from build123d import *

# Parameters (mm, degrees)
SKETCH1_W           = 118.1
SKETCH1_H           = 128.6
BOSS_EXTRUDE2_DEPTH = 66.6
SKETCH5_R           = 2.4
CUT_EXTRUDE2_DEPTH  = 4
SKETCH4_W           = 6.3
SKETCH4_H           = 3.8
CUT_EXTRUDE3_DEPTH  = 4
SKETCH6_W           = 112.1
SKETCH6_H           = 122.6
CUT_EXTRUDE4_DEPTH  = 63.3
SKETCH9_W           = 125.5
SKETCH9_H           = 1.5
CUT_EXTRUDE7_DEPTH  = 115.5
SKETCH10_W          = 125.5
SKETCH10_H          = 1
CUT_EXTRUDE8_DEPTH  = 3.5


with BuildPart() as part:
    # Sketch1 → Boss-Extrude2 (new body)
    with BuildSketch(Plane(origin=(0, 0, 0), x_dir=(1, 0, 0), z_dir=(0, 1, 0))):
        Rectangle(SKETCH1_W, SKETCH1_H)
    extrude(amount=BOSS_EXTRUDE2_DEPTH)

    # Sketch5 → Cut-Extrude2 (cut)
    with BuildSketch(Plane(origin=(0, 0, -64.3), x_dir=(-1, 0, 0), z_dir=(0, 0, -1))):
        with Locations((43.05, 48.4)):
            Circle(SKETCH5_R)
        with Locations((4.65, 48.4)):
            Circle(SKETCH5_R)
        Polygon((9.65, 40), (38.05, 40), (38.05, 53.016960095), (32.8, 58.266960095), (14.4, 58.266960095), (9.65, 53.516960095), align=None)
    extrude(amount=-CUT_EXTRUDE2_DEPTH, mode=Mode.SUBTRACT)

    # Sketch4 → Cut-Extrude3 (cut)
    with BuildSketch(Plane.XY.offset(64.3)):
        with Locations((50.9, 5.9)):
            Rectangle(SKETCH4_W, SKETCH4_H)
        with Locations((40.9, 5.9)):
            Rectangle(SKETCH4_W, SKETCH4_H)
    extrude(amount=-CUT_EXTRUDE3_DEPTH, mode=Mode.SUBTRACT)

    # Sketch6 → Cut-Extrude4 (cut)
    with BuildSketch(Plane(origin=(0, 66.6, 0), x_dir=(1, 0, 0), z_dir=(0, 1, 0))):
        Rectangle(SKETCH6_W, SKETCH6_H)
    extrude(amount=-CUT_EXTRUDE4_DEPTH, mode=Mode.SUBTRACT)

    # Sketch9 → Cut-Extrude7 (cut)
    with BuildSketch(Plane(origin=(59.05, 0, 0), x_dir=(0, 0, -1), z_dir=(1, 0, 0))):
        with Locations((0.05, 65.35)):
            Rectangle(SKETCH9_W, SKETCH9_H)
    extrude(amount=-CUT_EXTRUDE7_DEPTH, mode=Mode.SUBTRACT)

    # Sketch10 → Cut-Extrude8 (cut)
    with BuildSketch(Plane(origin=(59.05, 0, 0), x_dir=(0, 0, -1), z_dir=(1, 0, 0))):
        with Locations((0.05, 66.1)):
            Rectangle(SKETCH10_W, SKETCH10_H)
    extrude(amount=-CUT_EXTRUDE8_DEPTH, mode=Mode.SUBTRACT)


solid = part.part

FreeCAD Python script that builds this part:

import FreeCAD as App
import Part
import Sketcher

V = App.Vector
Q = App.Units.Quantity


def add_polygon(sketch, points):
    """Adds a closed chain of lines whose ends are joined by coincident constraints."""
    first, n = sketch.GeometryCount, len(points)
    for a, b in zip(points, points[1:] + points[:1]):
        sketch.addGeometry(Part.LineSegment(App.Vector(*a, 0), App.Vector(*b, 0)), False)
    for i in range(n):
        sketch.addConstraint(Sketcher.Constraint("Coincident", first + i, 2, first + (i + 1) % n, 1))

doc = App.newDocument("Part")
body = doc.addObject("PartDesign::Body", "Body")

# Sketch on XZ plane
sketch1 = body.newObject("Sketcher::SketchObject", "Sketch")
sketch1.AttachmentSupport = (doc.getObject("XZ_Plane"), [""])
sketch1.MapMode = "FlatFace"
add_polygon(sketch1, [(-59.05, -64.3), (-59.05, 64.3), (59.05, 64.3), (59.05, -64.3)])  # lines 0-3
sketch1.addConstraint(Sketcher.Constraint("Vertical", 0))
sketch1.addConstraint(Sketcher.Constraint("Horizontal", 1))
sketch1.addConstraint(Sketcher.Constraint("Vertical", 2))
sketch1.addConstraint(Sketcher.Constraint("Horizontal", 3))
sketch1.addConstraint(Sketcher.Constraint("Symmetric", 0, 2, 2, 2, -1, 1))
sketch1.addConstraint(Sketcher.Constraint("DistanceX", 1, 1, 1, 2, 118.1))
sketch1.addConstraint(Sketcher.Constraint("DistanceY", 0, 1, 0, 2, 128.6))
pad1 = body.newObject("PartDesign::Pad", "Pad")
pad1.Profile = sketch1
pad1.Length = 66.6
pad1.Reversed = True

# Sketch on XY plane
sketch2 = body.newObject("Sketcher::SketchObject", "Sketch001")
sketch2.AttachmentSupport = (doc.getObject("XY_Plane"), [""])
sketch2.MapMode = "FlatFace"
sketch2.AttachmentOffset = App.Placement(V(0, 0, -64.3), App.Rotation())
sketch2.addGeometry(Part.Circle(V(-43.05, 48.4, 0), V(0, 0, 1), 2.4), False)  # 0
sketch2.addGeometry(Part.Circle(V(-4.65, 48.4, 0), V(0, 0, 1), 2.4), False)  # 1
add_polygon(sketch2, [(-9.65, 40), (-38.05, 40), (-38.05, 53.01696), (-32.8, 58.26696), (-14.4, 58.26696), (-9.65, 53.51696)])  # lines 2-7
sketch2.addConstraint(Sketcher.Constraint("Horizontal", 2))
sketch2.addConstraint(Sketcher.Constraint("Vertical", 3))
sketch2.addConstraint(Sketcher.Constraint("Horizontal", 5))
sketch2.addConstraint(Sketcher.Constraint("Vertical", 7))
sketch2.addConstraint(Sketcher.Constraint("Equal", 0, 1))
sketch2.addConstraint(Sketcher.Constraint("Perpendicular", 4, 6))
sketch2.addConstraint(Sketcher.Constraint("Horizontal", 0, 3, 1, 3))
sketch2.addConstraint(Sketcher.Constraint("Diameter", 0, 4.8))
sketch2.addConstraint(Sketcher.Constraint("Angle", 4, Q("45 deg")))
sketch2.addConstraint(Sketcher.Constraint("DistanceX", 2, 2, 2, 1, 28.4))
sketch2.addConstraint(Sketcher.Constraint("DistanceX", 5, 1, 5, 2, 18.4))
sketch2.addConstraint(Sketcher.Constraint("DistanceY", -1, 1, 2, 2, 40.0))
sketch2.addConstraint(Sketcher.Constraint("DistanceX", 0, 3, 2, 2, 5.0))
sketch2.addConstraint(Sketcher.Constraint("DistanceX", 6, 2, 1, 3, 5.0))
sketch2.addConstraint(Sketcher.Constraint("DistanceY", -1, 1, 0, 3, 48.4))
sketch2.addConstraint(Sketcher.Constraint("DistanceX", 4, 2, -1, 1, 32.8))
sketch2.addConstraint(Sketcher.Constraint("DistanceY", 3, 2, 6, 2, 0.5))
sketch2.addConstraint(Sketcher.Constraint("DistanceY", 3, 1, 3, 2, 13.01696))
pocket1 = body.newObject("PartDesign::Pocket", "Pocket")
pocket1.Profile = sketch2
pocket1.Length = 4
pocket1.Reversed = True

# Sketch on XY plane
sketch3 = body.newObject("Sketcher::SketchObject", "Sketch002")
sketch3.AttachmentSupport = (doc.getObject("XY_Plane"), [""])
sketch3.MapMode = "FlatFace"
sketch3.AttachmentOffset = App.Placement(V(0, 0, 64.3), App.Rotation())
add_polygon(sketch3, [(47.75, 7.8), (47.75, 4), (54.05, 4), (54.05, 7.8)])  # lines 0-3
add_polygon(sketch3, [(37.75, 7.8), (37.75, 4), (44.05, 4), (44.05, 7.8)])  # lines 4-7
sketch3.addConstraint(Sketcher.Constraint("Vertical", 0))
sketch3.addConstraint(Sketcher.Constraint("Horizontal", 1))
sketch3.addConstraint(Sketcher.Constraint("Vertical", 2))
sketch3.addConstraint(Sketcher.Constraint("Horizontal", 3))
sketch3.addConstraint(Sketcher.Constraint("Vertical", 4))
sketch3.addConstraint(Sketcher.Constraint("Horizontal", 5))
sketch3.addConstraint(Sketcher.Constraint("Vertical", 6))
sketch3.addConstraint(Sketcher.Constraint("Horizontal", 7))
sketch3.addConstraint(Sketcher.Constraint("Horizontal", 1, 2, 4, 2))
sketch3.addConstraint(Sketcher.Constraint("Horizontal", 3, 2, 6, 2))
sketch3.addConstraint(Sketcher.Constraint("Equal", 3, 5))
sketch3.addConstraint(Sketcher.Constraint("DistanceX", 1, 1, 1, 2, 6.3))
sketch3.addConstraint(Sketcher.Constraint("DistanceY", 0, 2, 0, 1, 3.8))
sketch3.addConstraint(Sketcher.Constraint("DistanceY", -1, 1, 0, 2, 4.0))
sketch3.addConstraint(Sketcher.Constraint("DistanceX", 4, 2, 0, 2, 10.0))
sketch3.addConstraint(Sketcher.Constraint("DistanceX", -1, 1, 0, 2, 47.75))
pocket2 = body.newObject("PartDesign::Pocket", "Pocket001")
pocket2.Profile = sketch3
pocket2.Length = 4

# Sketch on XZ plane
sketch4 = body.newObject("Sketcher::SketchObject", "Sketch003")
sketch4.AttachmentSupport = (doc.getObject("XZ_Plane"), [""])
sketch4.MapMode = "FlatFace"
sketch4.AttachmentOffset = App.Placement(V(0, 0, -66.6), App.Rotation())
add_polygon(sketch4, [(-56.05, -61.3), (-56.05, 61.3), (56.05, 61.3), (56.05, -61.3)])  # lines 0-3
sketch4.addConstraint(Sketcher.Constraint("Vertical", 0))
sketch4.addConstraint(Sketcher.Constraint("Horizontal", 1))
sketch4.addConstraint(Sketcher.Constraint("Vertical", 2))
sketch4.addConstraint(Sketcher.Constraint("Horizontal", 3))
sketch4.addConstraint(Sketcher.Constraint("Symmetric", 0, 2, 2, 2, -1, 1))
sketch4.addConstraint(Sketcher.Constraint("DistanceX", 1, 1, 1, 2, 112.1))
sketch4.addConstraint(Sketcher.Constraint("DistanceY", 0, 1, 0, 2, 122.6))
pocket3 = body.newObject("PartDesign::Pocket", "Pocket002")
pocket3.Profile = sketch4
pocket3.Length = 63.3
pocket3.Reversed = True

# Sketch on YZ plane
sketch5 = body.newObject("Sketcher::SketchObject", "Sketch004")
sketch5.AttachmentSupport = (doc.getObject("YZ_Plane"), [""])
sketch5.MapMode = "FlatFace"
sketch5.AttachmentOffset = App.Placement(V(0, 0, 59.05), App.Rotation())
add_polygon(sketch5, [(66.1, 62.7), (64.6, 62.7), (64.6, -62.8), (66.1, -62.8)])  # lines 0-3
sketch5.addConstraint(Sketcher.Constraint("Horizontal", 0))
sketch5.addConstraint(Sketcher.Constraint("Vertical", 1))
sketch5.addConstraint(Sketcher.Constraint("Horizontal", 2))
sketch5.addConstraint(Sketcher.Constraint("Vertical", 3))
sketch5.addConstraint(Sketcher.Constraint("DistanceX", 0, 2, 0, 1, 1.5))
sketch5.addConstraint(Sketcher.Constraint("DistanceY", 1, 2, 1, 1, 125.5))
sketch5.addConstraint(Sketcher.Constraint("DistanceX", -1, 1, 0, 2, 64.6))
sketch5.addConstraint(Sketcher.Constraint("DistanceY", -1, 1, 0, 2, 62.7))
pocket4 = body.newObject("PartDesign::Pocket", "Pocket003")
pocket4.Profile = sketch5
pocket4.Length = 115.5

# Sketch on YZ plane
sketch6 = body.newObject("Sketcher::SketchObject", "Sketch005")
sketch6.AttachmentSupport = (doc.getObject("YZ_Plane"), [""])
sketch6.MapMode = "FlatFace"
sketch6.AttachmentOffset = App.Placement(V(0, 0, 59.05), App.Rotation())
add_polygon(sketch6, [(66.6, 62.7), (65.6, 62.7), (65.6, -62.8), (66.6, -62.8)])  # lines 0-3
sketch6.addConstraint(Sketcher.Constraint("Horizontal", 0))
sketch6.addConstraint(Sketcher.Constraint("Vertical", 1))
sketch6.addConstraint(Sketcher.Constraint("Horizontal", 2))
sketch6.addConstraint(Sketcher.Constraint("Vertical", 3))
sketch6.addConstraint(Sketcher.Constraint("DistanceX", 0, 2, 0, 1, 1.0))
sketch6.addConstraint(Sketcher.Constraint("DistanceY", 1, 2, 1, 1, 125.5))
sketch6.addConstraint(Sketcher.Constraint("DistanceX", -1, 1, 0, 2, 65.6))
sketch6.addConstraint(Sketcher.Constraint("DistanceY", -1, 1, 0, 2, 62.7))
pocket5 = body.newObject("PartDesign::Pocket", "Pocket004")
pocket5.Profile = sketch6
pocket5.Length = 3.5

doc.recompute()
